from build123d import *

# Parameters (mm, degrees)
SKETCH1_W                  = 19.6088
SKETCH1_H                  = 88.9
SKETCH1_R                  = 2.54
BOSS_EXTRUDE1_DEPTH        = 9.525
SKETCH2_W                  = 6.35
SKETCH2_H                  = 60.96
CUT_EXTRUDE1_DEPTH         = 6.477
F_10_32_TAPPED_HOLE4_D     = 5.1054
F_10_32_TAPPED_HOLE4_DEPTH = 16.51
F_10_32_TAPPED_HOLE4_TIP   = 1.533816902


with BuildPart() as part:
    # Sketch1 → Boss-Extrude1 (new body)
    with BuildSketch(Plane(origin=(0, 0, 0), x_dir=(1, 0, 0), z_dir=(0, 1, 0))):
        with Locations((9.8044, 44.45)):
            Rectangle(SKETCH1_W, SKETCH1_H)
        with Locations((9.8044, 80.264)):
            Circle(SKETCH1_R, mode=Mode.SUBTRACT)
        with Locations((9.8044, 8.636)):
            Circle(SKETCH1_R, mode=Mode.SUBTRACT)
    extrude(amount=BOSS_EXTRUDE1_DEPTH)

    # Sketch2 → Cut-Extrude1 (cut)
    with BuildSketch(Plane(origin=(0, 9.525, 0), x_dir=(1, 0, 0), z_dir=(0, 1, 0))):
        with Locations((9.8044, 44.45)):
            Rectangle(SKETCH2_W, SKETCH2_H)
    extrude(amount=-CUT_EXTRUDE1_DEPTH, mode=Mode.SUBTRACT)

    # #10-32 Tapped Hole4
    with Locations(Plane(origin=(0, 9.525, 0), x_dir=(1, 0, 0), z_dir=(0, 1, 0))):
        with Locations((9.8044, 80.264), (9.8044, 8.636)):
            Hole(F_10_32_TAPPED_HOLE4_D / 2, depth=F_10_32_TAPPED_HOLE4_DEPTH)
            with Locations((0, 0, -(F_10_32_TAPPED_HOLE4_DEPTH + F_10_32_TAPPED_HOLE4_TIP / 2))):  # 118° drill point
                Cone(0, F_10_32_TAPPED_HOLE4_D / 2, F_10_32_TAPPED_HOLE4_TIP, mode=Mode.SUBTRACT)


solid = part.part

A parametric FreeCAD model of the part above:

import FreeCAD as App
import Part
import Sketcher

V = App.Vector
Q = App.Units.Quantity

doc = App.newDocument("Part")
body = doc.addObject("PartDesign::Body", "Body")

# Sketch on XZ plane
sketch1 = body.newObject("Sketcher::SketchObject", "Sketch")
sketch1.AttachmentSupport = (doc.getObject("XZ_Plane"), [""])
sketch1.MapMode = "FlatFace"
sketch1.addGeometry([
    Part.LineSegment(V(0, -88.9, 0), V(0, 0, 0)),  # 0
    Part.LineSegment(V(0, 0, 0), V(19.6, 0, 0)),  # 1
    Part.LineSegment(V(19.6, 0, 0), V(19.6, -88.9, 0)),  # 2
    Part.LineSegment(V(19.6, -88.9, 0), V(0, -88.9, 0)),  # 3
    Part.Circle(V(9.8, -8.6, 0), V(0, 0, 1), 2.5),  # 4
    Part.Circle(V(9.8, -80.3, 0), V(0, 0, 1), 2.5),  # 5
], False)
sketch1.addConstraint([
    Sketcher.Constraint("Coincident", 0, 2, 1, 1),
    Sketcher.Constraint("Coincident", 1, 2, 2, 1),
    Sketcher.Constraint("Coincident", 2, 2, 3, 1),
    Sketcher.Constraint("Coincident", 3, 2, 0, 1),
    Sketcher.Constraint("Vertical", 0),
    Sketcher.Constraint("Horizontal", 1),
    Sketcher.Constraint("Vertical", 2),
    Sketcher.Constraint("Horizontal", 3),
    Sketcher.Constraint("Coincident", 0, 2, -1, 1),
    Sketcher.Constraint("Equal", 4, 5),
    Sketcher.Constraint("Vertical", 4, 3, 5, 3),
    Sketcher.Constraint("Diameter", 4, Q("0.2 in")),
    Sketcher.Constraint("DistanceY", 0, 1, 0, 2, Q("3.5 in")),
    Sketcher.Constraint("DistanceX", 1, 1, 1, 2, Q("0.772 in")),
    Sketcher.Constraint("DistanceY", 4, 3, -1, 1, Q("0.34 in")),
    Sketcher.Constraint("DistanceY", 5, 3, -1, 1, Q("3.16 in")),
    Sketcher.Constraint("DistanceX", -1, 1, 4, 3, Q("0.386 in")),
])
pad1 = body.newObject("PartDesign::Pad", "Pad")
pad1.Profile = sketch1
pad1.Length = Q("0.375 in")
pad1.Reversed = True

# Sketch on XZ plane
sketch2 = body.newObject("Sketcher::SketchObject", "Sketch001")
sketch2.AttachmentSupport = (doc.getObject("XZ_Plane"), [""])
sketch2.MapMode = "FlatFace"
sketch2.AttachmentOffset = App.Placement(V(0, 0, -0.375 * 25.4), App.Rotation())
sketch2.addGeometry([
    Part.LineSegment(V(7, -75, 0), V(7, -14, 0)),
    Part.LineSegment(V(7, -14, 0), V(13, -14, 0)),
    Part.LineSegment(V(13, -14, 0), V(13, -75, 0)),
    Part.LineSegment(V(13, -75, 0), V(7, -75, 0)),
], False)
sketch2.addConstraint([
    Sketcher.Constraint("Coincident", 0, 2, 1, 1),
    Sketcher.Constraint("Coincident", 1, 2, 2, 1),
    Sketcher.Constraint("Coincident", 2, 2, 3, 1),
    Sketcher.Constraint("Coincident", 3, 2, 0, 1),
    Sketcher.Constraint("Vertical", 0),
    Sketcher.Constraint("Horizontal", 1),
    Sketcher.Constraint("Vertical", 2),
    Sketcher.Constraint("Horizontal", 3),
    Sketcher.Constraint("DistanceY", 0, 1, 0, 2, Q("2.4 in")),
    Sketcher.Constraint("DistanceX", 1, 1, 1, 2, Q("0.25 in")),
    Sketcher.Constraint("DistanceY", 0, 2, -1, 1, Q("0.55 in")),
    Sketcher.Constraint("DistanceX", -1, 1, 0, 2, Q("0.261 in")),
])
pocket1 = body.newObject("PartDesign::Pocket", "Pocket")
pocket1.Profile = sketch2
pocket1.Length = Q("0.255 in")
pocket1.Reversed = True

# Sketch on XZ plane
sketch3 = body.newObject("Sketcher::SketchObject", "Sketch002")
sketch3.AttachmentSupport = (doc.getObject("XZ_Plane"), [""])
sketch3.MapMode = "FlatFace"
sketch3.AttachmentOffset = App.Placement(V(0, 0, -0.375 * 25.4), App.Rotation())
sketch3.addGeometry([
    Part.Circle(V(9.8, -80.3, 0), V(0, 0, 1), 2.6),
    Part.Circle(V(9.8, -8.6, 0), V(0, 0, 1), 2.6),
], False)
sketch3.addConstraint([
    Sketcher.Constraint("Equal", 0, 1),
    Sketcher.Constraint("Vertical", 0, 3, 1, 3),
    Sketcher.Constraint("Diameter", 0, Q("0.201 in")),
    Sketcher.Constraint("DistanceY", 0, 3, -1, 1, Q("3.16 in")),
    Sketcher.Constraint("DistanceY", 1, 3, -1, 1, Q("0.34 in")),
    Sketcher.Constraint("DistanceX", -1, 1, 0, 3, Q("0.386 in")),
])
doc.recompute()
hole = body.newObject("PartDesign::Hole", "Hole")
hole.Profile = sketch3
hole.ThreadType = "None"
hole.Diameter = Q("0.201 in")
hole.DepthType = "Dimension"
hole.Depth = Q("0.65 in")
hole.DrillPoint = "Angled"
hole.DrillPointAngle = 118
hole.Reversed = True

doc.recompute()
